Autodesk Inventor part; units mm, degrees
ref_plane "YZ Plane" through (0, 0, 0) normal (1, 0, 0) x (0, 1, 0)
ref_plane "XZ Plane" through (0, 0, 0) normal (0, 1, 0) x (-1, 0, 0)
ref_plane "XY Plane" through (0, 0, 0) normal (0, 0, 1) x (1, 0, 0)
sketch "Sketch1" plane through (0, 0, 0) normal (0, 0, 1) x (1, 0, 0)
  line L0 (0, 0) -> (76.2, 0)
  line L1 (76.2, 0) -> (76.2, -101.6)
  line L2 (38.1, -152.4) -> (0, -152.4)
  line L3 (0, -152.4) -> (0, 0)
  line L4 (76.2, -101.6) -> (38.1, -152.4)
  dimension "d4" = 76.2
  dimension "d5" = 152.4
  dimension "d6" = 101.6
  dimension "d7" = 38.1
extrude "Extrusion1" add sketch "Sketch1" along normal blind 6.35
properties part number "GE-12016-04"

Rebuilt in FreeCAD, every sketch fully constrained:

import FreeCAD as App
import Part
import Sketcher
Q = App.Units.Quantity

doc = App.newDocument("Part")
body = doc.addObject("PartDesign::Body", "Body")

# Sketch on XY plane
sketch1 = doc.addObject("Sketcher::SketchObject", "Sketch")
body.addObject(sketch1)
sketch1.AttachmentSupport = (doc.XY_Plane, [""])
sketch1.MapMode = "FlatFace"
sketch1.addGeometry([
    Part.LineSegment(App.Vector(76, 0, 0), App.Vector(0, 0, 0)),  # 0
    Part.LineSegment(App.Vector(0, 0, 0), App.Vector(0, -152, 0)),  # 1
    Part.LineSegment(App.Vector(0, -152, 0), App.Vector(38, -152, 0)),  # 2
    Part.LineSegment(App.Vector(38, -152, 0), App.Vector(76, -102, 0)),  # 3
    Part.LineSegment(App.Vector(76, -102, 0), App.Vector(76, 0, 0)),  # 4
], False)
sketch1.addConstraint([
    Sketcher.Constraint("Coincident", 0, 2, 1, 1),
    Sketcher.Constraint("Coincident", 1, 2, 2, 1),
    Sketcher.Constraint("Coincident", 2, 2, 3, 1),
    Sketcher.Constraint("Coincident", 3, 2, 4, 1),
    Sketcher.Constraint("Coincident", 4, 2, 0, 1),
    Sketcher.Constraint("Horizontal", 0),
    Sketcher.Constraint("Vertical", 1),
    Sketcher.Constraint("Horizontal", 2),
    Sketcher.Constraint("Vertical", 4),
    Sketcher.Constraint("Coincident", 0, 2, -1, 1),
    Sketcher.Constraint("DistanceX", 0, 2, 0, 1, Q("3 in")),
    Sketcher.Constraint("DistanceY", 1, 2, 1, 1, Q("6 in")),
    Sketcher.Constraint("DistanceY", 4, 1, 4, 2, Q("4 in")),
    Sketcher.Constraint("DistanceX", 2, 1, 2, 2, Q("1.5 in")),
])
pad1 = doc.addObject("PartDesign::Pad", "Pad")
body.addObject(pad1)
pad1.Profile = sketch1
pad1.Length = Q("0.25 in")

doc.recompute()
